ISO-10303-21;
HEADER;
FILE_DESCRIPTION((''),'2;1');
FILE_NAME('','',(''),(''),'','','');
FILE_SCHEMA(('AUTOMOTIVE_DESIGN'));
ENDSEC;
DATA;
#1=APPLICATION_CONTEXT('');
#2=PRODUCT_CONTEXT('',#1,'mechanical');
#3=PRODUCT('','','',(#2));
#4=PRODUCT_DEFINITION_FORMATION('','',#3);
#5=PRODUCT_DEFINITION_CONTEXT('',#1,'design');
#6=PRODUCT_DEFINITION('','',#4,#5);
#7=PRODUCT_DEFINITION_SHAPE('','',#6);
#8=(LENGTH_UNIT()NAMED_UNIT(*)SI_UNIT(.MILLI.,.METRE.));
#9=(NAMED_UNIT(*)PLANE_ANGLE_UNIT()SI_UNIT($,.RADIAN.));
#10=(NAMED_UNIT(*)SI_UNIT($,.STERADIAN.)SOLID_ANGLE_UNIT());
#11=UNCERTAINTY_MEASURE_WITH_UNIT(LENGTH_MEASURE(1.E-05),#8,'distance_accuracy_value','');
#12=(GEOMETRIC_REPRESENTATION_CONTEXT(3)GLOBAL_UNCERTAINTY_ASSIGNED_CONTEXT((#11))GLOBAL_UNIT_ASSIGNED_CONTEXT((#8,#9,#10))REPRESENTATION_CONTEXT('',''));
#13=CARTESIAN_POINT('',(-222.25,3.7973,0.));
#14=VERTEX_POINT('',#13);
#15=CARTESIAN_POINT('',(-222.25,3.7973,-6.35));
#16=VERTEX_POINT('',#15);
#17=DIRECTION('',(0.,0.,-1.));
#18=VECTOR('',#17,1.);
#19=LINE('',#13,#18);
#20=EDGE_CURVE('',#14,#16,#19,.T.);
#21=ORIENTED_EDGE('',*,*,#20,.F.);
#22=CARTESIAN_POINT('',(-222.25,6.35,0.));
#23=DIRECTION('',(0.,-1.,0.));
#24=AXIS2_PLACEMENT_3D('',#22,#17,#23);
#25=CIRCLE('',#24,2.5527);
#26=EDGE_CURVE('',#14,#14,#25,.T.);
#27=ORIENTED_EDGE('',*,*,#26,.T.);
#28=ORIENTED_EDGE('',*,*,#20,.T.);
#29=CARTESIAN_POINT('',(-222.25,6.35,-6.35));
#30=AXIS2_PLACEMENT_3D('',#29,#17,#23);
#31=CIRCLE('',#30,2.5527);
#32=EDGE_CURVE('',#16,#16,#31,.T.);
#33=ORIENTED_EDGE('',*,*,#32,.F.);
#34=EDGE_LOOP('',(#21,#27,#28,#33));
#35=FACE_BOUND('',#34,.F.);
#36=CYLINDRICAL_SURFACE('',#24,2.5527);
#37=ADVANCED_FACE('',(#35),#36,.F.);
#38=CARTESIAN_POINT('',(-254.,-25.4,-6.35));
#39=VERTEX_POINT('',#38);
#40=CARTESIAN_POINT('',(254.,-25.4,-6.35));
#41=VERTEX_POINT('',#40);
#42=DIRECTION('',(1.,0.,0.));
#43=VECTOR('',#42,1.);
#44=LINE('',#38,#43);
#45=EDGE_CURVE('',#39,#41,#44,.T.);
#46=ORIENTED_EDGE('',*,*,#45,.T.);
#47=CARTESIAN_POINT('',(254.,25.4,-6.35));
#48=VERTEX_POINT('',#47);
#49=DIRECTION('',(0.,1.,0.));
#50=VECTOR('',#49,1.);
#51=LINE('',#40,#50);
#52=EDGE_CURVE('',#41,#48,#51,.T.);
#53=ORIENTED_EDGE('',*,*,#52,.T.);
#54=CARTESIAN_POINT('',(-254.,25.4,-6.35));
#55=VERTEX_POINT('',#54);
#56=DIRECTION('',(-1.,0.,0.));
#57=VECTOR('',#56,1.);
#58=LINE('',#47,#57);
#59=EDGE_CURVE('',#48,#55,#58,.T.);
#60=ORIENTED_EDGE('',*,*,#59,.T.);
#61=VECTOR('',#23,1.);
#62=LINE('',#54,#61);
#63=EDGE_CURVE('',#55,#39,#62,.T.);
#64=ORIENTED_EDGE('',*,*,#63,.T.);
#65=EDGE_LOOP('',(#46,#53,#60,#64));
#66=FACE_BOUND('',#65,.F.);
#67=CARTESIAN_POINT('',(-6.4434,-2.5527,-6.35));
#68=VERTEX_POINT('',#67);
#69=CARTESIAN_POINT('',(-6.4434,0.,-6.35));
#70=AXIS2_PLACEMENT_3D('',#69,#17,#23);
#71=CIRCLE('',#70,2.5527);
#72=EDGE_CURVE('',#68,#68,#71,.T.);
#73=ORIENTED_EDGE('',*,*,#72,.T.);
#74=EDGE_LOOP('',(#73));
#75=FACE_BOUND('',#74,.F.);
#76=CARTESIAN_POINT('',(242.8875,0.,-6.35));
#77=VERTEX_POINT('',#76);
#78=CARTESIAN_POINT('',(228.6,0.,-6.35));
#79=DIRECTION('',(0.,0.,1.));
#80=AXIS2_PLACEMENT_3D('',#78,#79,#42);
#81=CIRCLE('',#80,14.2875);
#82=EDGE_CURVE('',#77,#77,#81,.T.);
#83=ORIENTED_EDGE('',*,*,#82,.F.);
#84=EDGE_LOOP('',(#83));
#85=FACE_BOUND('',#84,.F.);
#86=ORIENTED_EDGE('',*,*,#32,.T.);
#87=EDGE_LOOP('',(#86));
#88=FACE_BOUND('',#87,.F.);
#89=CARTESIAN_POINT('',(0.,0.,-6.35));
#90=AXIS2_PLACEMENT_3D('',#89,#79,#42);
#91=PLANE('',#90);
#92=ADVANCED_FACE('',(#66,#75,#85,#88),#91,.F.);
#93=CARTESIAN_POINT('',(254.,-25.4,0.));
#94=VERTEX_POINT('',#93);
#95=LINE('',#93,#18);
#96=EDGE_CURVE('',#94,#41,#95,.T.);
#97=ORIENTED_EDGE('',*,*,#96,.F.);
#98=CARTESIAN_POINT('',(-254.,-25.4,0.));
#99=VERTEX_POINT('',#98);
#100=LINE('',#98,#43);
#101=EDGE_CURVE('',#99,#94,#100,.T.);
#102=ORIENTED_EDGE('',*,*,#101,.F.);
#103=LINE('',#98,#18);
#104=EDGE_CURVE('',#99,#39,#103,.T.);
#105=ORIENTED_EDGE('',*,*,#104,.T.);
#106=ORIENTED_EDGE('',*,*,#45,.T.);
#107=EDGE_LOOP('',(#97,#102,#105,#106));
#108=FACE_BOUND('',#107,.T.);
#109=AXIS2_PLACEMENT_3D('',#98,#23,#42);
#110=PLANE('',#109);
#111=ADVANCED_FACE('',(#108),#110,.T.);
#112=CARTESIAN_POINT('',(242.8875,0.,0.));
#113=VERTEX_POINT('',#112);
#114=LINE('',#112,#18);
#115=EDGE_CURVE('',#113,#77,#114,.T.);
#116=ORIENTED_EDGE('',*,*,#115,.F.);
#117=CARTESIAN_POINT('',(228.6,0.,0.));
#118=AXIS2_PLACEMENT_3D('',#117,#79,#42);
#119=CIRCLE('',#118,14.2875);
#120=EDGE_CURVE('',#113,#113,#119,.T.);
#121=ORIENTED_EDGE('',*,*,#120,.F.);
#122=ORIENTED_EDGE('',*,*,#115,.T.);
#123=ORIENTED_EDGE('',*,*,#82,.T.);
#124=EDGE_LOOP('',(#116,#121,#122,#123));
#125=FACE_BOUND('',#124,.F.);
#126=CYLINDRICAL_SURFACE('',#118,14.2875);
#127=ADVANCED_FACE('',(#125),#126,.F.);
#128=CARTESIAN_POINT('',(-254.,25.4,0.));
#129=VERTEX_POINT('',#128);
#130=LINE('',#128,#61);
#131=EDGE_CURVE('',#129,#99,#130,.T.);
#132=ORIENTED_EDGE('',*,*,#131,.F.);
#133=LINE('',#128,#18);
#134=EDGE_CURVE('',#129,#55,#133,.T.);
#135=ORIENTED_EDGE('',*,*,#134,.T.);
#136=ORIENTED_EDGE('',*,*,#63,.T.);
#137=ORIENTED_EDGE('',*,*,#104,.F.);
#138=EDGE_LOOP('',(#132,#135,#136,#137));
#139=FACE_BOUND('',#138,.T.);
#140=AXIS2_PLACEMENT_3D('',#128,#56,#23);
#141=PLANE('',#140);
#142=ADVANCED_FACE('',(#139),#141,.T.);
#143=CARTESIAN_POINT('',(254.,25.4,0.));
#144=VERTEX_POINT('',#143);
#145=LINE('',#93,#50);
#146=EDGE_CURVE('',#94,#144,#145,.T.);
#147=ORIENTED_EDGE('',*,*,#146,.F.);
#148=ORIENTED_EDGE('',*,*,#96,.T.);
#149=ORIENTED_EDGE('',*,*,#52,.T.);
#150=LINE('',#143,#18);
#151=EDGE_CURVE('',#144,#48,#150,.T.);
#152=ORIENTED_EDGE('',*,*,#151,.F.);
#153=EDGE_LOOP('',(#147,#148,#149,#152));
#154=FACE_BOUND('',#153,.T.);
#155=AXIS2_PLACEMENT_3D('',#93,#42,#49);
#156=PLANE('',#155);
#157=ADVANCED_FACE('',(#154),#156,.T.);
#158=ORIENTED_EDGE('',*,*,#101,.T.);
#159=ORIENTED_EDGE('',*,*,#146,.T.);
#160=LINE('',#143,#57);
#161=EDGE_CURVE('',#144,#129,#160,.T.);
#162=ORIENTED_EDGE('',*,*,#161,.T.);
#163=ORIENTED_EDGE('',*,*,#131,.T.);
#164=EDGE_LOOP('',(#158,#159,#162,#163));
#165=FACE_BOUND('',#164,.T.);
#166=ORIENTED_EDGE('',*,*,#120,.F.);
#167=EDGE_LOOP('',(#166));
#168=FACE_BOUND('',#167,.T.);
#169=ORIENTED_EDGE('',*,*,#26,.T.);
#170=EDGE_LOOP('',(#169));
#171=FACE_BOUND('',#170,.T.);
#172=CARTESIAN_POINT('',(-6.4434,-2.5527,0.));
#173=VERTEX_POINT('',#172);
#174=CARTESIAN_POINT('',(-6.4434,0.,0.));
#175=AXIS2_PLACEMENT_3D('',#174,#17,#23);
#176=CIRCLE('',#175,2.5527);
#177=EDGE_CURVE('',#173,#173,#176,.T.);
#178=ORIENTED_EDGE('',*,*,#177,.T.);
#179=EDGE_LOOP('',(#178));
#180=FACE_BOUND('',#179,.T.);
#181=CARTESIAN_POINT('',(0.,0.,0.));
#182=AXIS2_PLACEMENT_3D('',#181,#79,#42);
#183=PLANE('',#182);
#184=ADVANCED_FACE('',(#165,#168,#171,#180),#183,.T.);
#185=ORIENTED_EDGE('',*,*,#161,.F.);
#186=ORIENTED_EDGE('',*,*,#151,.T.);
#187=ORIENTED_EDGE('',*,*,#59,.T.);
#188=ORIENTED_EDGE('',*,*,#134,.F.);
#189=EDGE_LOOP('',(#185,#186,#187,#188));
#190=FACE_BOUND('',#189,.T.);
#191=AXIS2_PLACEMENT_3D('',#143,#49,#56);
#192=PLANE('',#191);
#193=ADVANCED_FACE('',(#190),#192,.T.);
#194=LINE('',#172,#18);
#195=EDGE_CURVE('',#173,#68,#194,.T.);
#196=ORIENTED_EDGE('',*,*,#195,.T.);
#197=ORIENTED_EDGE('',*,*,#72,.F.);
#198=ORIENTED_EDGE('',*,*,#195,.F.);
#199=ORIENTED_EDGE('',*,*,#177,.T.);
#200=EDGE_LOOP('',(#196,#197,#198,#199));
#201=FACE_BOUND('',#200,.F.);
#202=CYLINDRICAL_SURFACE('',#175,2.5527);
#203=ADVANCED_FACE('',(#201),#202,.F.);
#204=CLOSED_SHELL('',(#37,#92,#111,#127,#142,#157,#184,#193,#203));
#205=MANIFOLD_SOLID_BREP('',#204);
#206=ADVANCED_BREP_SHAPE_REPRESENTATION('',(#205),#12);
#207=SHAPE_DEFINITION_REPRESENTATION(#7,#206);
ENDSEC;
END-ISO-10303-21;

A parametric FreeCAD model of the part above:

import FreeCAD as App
import Part
import Sketcher
from FreeCAD import Vector
Q = App.Units.Quantity

doc = App.newDocument("Part")
body = doc.addObject("PartDesign::Body", "Body")

# Sketch on XY plane
sketch1 = body.newObject("Sketcher::SketchObject", "Sketch")
sketch1.AttachmentSupport = (doc.getObject("XY_Plane"), [""])
sketch1.MapMode = "FlatFace"
sketch1.addGeometry(Part.LineSegment(Vector(-254, 25, 0), Vector(-254, -25, 0)), False)
sketch1.addGeometry(Part.LineSegment(Vector(-254, -25, 0), Vector(254, -25, 0)), False)
sketch1.addGeometry(Part.LineSegment(Vector(254, -25, 0), Vector(254, 25, 0)), False)
sketch1.addGeometry(Part.LineSegment(Vector(254, 25, 0), Vector(-254, 25, 0)), False)
sketch1.addGeometry(Part.Circle(Vector(229, 0, 0), Vector(0, 0, 1), 14), False)
sketch1.addConstraint(Sketcher.Constraint("Coincident", 0, 2, 1, 1))
sketch1.addConstraint(Sketcher.Constraint("Coincident", 1, 2, 2, 1))
sketch1.addConstraint(Sketcher.Constraint("Coincident", 2, 2, 3, 1))
sketch1.addConstraint(Sketcher.Constraint("Coincident", 3, 2, 0, 1))
sketch1.addConstraint(Sketcher.Constraint("Vertical", 0))
sketch1.addConstraint(Sketcher.Constraint("Horizontal", 1))
sketch1.addConstraint(Sketcher.Constraint("Vertical", 2))
sketch1.addConstraint(Sketcher.Constraint("Horizontal", 3))
sketch1.addConstraint(Sketcher.Constraint("Symmetric", 0, 2, 2, 2, -1, 1))
sketch1.addConstraint(Sketcher.Constraint("PointOnObject", 4, 3, -1))
sketch1.addConstraint(Sketcher.Constraint("DistanceX", 1, 1, 1, 2, Q("20 in")))
sketch1.addConstraint(Sketcher.Constraint("DistanceY", 0, 2, 0, 1, Q("2 in")))
sketch1.addConstraint(Sketcher.Constraint("Diameter", 4, Q("1.125 in")))
sketch1.addConstraint(Sketcher.Constraint("DistanceX", 4, 3, 1, 2, Q("1 in")))
pad1 = body.newObject("PartDesign::Pad", "Pad")
pad1.Profile = sketch1
pad1.Length = Q("0.25 in")
pad1.Reversed = True

# Sketch on XY plane
sketch2 = body.newObject("Sketcher::SketchObject", "Sketch001")
sketch2.AttachmentSupport = (doc.getObject("XY_Plane"), [""])
sketch2.MapMode = "FlatFace"
sketch2.addGeometry(Part.Circle(Vector(-6.4, 0, 0), Vector(0, 0, 1), 2.6), False)
sketch2.addGeometry(Part.Circle(Vector(-222.2, 6.3, 0), Vector(0, 0, 1), 2.6), False)
sketch2.addConstraint(Sketcher.Constraint("Equal", 0, 1))
sketch2.addConstraint(Sketcher.Constraint("PointOnObject", 0, 3, -1))
sketch2.addConstraint(Sketcher.Constraint("Diameter", 0, Q("0.201 in")))
sketch2.addConstraint(Sketcher.Constraint("DistanceX", 1, 3, -1, 1, Q("8.75 in")))
sketch2.addConstraint(Sketcher.Constraint("DistanceY", -1, 1, 1, 3, Q("0.25 in")))
sketch2.addConstraint(Sketcher.Constraint("DistanceX", 0, 3, -1, 1, Q("6.4434 mm")))
doc.recompute()
hole = body.newObject("PartDesign::Hole", "Hole")
hole.Profile = sketch2
hole.ThreadType = "None"
hole.Diameter = Q("0.201 in")
hole.DepthType = "ThroughAll"

doc.recompute()
